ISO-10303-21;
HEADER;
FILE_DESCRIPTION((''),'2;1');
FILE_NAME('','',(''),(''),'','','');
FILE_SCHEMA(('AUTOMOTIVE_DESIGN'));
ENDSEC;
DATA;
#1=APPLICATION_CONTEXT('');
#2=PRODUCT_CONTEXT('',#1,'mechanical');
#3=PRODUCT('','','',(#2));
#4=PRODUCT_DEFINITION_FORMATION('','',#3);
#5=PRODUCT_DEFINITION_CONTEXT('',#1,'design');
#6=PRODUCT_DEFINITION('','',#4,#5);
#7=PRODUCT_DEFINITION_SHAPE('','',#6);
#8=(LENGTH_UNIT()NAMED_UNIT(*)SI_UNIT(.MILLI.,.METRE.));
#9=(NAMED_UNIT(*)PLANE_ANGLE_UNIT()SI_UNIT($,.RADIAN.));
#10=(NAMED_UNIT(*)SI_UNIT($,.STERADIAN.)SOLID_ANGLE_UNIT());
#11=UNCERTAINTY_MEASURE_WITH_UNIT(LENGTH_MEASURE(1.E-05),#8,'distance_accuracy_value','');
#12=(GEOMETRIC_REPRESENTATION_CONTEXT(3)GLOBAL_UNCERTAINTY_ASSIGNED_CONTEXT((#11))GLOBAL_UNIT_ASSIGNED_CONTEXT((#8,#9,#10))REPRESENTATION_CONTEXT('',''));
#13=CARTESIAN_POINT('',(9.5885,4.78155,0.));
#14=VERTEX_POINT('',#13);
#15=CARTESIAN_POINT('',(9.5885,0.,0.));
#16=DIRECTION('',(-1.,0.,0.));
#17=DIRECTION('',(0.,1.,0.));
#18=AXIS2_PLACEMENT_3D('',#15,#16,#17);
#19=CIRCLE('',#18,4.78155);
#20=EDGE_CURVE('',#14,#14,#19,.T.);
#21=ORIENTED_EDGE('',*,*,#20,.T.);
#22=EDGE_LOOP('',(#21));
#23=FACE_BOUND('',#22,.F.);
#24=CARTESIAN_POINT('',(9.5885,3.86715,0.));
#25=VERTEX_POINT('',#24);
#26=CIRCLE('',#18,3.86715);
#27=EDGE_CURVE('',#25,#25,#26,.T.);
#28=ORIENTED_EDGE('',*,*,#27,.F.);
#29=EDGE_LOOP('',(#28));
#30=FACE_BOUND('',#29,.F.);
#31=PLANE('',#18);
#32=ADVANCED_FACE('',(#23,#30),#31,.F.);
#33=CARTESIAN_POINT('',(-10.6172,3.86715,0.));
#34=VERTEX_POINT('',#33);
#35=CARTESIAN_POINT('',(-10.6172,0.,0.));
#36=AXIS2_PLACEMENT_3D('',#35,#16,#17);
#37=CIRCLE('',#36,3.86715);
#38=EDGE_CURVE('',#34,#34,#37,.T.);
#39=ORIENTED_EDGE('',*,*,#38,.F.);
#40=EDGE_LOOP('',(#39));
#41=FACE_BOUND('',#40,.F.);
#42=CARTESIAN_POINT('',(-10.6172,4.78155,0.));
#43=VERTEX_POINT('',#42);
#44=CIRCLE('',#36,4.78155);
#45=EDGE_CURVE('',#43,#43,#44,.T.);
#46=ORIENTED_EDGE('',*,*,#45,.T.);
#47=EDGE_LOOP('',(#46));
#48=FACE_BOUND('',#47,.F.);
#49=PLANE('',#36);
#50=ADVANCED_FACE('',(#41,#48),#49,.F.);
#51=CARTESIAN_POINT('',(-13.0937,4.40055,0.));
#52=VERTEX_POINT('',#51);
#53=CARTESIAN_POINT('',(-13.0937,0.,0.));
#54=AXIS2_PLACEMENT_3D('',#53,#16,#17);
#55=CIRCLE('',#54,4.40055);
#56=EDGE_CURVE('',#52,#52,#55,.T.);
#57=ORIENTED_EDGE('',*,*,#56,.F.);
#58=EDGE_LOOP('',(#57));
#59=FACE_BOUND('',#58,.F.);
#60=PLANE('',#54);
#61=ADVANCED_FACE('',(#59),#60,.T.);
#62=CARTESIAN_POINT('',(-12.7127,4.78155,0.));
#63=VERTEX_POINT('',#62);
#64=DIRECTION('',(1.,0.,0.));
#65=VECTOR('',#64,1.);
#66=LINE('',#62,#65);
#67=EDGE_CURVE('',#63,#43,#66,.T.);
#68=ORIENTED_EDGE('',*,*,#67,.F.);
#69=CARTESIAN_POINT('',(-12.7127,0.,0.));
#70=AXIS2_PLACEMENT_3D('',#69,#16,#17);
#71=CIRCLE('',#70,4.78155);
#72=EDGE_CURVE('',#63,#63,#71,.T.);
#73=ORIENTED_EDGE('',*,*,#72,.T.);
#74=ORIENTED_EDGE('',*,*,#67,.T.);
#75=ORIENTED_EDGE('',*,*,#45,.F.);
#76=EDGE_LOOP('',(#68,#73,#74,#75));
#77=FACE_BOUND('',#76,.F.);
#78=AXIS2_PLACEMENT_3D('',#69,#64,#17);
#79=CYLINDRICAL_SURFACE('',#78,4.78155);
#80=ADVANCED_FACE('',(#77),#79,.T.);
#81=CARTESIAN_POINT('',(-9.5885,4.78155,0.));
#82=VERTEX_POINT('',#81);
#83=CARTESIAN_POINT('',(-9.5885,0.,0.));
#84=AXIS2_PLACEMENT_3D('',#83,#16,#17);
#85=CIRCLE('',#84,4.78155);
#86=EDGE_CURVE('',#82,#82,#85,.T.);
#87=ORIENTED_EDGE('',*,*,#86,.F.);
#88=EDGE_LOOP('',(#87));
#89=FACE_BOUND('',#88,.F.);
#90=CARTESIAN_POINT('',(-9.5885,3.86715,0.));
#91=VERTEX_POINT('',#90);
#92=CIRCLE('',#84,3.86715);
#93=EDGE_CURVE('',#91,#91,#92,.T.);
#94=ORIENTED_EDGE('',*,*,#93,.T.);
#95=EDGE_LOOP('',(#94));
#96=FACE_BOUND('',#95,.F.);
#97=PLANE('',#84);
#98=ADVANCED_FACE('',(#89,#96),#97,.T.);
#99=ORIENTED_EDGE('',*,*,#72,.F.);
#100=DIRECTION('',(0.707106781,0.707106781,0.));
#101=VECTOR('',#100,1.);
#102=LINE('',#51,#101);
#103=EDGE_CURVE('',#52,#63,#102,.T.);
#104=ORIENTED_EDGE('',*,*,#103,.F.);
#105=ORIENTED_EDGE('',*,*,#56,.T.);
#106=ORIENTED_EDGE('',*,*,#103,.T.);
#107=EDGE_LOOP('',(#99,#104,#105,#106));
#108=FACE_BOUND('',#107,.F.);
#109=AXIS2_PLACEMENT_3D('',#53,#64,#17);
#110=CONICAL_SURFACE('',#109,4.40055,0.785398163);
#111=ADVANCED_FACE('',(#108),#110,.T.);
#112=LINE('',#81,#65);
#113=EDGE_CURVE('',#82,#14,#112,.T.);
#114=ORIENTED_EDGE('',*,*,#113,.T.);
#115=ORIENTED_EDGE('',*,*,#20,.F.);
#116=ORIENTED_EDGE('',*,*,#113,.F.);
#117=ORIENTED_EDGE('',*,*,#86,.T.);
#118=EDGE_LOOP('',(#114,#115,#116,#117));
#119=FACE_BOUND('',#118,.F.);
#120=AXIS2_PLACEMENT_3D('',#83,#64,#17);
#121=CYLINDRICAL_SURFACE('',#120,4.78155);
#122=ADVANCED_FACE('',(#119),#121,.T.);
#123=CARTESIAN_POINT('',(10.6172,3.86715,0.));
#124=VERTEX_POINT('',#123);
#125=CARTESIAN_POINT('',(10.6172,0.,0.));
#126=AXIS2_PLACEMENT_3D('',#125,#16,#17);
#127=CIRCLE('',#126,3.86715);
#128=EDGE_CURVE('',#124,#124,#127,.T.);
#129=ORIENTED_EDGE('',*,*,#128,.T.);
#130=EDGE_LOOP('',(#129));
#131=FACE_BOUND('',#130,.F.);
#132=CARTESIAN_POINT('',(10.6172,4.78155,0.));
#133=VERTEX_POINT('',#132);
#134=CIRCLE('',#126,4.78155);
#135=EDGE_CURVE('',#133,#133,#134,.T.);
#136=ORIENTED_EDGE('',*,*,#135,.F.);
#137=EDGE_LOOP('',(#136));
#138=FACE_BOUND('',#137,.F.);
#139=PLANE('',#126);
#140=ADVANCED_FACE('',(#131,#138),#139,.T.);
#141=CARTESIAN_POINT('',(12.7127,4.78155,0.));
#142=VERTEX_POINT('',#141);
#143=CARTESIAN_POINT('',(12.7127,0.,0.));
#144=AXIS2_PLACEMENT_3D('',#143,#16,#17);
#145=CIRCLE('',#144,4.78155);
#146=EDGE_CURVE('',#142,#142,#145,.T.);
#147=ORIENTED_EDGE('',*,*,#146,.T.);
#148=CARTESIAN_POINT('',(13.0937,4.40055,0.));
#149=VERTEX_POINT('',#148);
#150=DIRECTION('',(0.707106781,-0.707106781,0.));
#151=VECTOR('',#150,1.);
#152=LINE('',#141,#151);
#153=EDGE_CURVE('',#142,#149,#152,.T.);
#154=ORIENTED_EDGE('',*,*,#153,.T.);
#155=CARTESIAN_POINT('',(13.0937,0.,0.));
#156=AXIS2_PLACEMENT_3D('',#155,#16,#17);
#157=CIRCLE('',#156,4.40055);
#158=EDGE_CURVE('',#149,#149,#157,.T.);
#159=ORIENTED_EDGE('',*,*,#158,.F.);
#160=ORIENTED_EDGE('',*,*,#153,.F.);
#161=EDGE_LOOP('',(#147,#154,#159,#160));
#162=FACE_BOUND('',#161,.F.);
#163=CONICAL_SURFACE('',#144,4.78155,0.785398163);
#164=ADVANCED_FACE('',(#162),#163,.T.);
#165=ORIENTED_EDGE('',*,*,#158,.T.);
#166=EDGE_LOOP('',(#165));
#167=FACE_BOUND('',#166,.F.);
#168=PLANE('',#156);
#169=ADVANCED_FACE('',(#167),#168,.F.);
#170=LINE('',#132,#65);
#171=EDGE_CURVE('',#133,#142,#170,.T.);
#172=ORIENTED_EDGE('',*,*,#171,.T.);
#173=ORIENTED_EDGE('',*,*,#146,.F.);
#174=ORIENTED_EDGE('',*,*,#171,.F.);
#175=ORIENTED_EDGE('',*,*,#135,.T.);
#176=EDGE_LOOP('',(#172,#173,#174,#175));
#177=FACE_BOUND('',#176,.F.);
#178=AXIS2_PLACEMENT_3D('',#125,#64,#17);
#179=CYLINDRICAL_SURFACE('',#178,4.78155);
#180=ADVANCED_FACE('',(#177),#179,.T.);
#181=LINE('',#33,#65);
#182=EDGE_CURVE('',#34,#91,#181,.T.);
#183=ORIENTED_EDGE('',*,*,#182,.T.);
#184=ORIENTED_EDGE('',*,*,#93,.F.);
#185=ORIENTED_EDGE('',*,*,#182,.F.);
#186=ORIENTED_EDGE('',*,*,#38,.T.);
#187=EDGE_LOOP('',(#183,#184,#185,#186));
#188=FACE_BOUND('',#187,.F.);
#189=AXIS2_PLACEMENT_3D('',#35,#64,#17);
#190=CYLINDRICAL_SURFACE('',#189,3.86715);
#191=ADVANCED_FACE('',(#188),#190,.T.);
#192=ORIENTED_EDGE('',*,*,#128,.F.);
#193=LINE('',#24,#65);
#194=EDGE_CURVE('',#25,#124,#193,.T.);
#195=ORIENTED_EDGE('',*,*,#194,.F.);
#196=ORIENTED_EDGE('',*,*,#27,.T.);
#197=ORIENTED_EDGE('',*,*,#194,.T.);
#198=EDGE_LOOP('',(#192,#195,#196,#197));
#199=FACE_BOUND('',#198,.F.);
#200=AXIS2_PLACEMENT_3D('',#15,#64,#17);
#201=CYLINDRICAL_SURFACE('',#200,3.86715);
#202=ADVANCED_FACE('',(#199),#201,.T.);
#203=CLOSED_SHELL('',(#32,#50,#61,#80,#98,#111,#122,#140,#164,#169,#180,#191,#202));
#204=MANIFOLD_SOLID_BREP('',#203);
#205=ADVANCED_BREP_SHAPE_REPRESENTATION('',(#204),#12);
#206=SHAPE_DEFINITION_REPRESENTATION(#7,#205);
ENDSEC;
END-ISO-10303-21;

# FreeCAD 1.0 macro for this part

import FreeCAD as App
import Part
import Sketcher

V = App.Vector
Q = App.Units.Quantity


def add_polygon(sketch, points):
    """Adds a closed chain of lines whose ends are joined by coincident constraints."""
    first, n = sketch.GeometryCount, len(points)
    for a, b in zip(points, points[1:] + points[:1]):
        sketch.addGeometry(Part.LineSegment(App.Vector(*a, 0), App.Vector(*b, 0)), False)
    for i in range(n):
        sketch.addConstraint(Sketcher.Constraint("Coincident", first + i, 2, first + (i + 1) % n, 1))

doc = App.newDocument("Part")
body = doc.addObject("PartDesign::Body", "Body")

# Sketch on XY plane
sketch1 = doc.addObject("Sketcher::SketchObject", "Sketch")
body.addObject(sketch1)
sketch1.AttachmentSupport = (doc.XY_Plane, [""])
sketch1.MapMode = "FlatFace"
add_polygon(sketch1, [(-13.0937, 4.40055), (-13.0937, 0), (13.0937, 0), (13.0937, 4.40055), (12.7127, 4.78155), (10.6172, 4.78155), (10.6172, 3.86715), (9.5885, 3.86715), (9.5885, 4.78155), (-9.5885, 4.78155), (-9.5885, 3.86715), (-10.6172, 3.86715), (-10.6172, 4.78155), (-12.7127, 4.78155)])  # lines 0-13
sketch1.addConstraint([
    Sketcher.Constraint("Vertical", 0),
    Sketcher.Constraint("Horizontal", 1),
    Sketcher.Constraint("Vertical", 2),
    Sketcher.Constraint("Horizontal", 4),
    Sketcher.Constraint("Vertical", 5),
    Sketcher.Constraint("Horizontal", 6),
    Sketcher.Constraint("Vertical", 7),
    Sketcher.Constraint("Horizontal", 8),
    Sketcher.Constraint("Vertical", 9),
    Sketcher.Constraint("Horizontal", 10),
    Sketcher.Constraint("Vertical", 11),
    Sketcher.Constraint("Horizontal", 12),
    Sketcher.Constraint("Symmetric", 0, 2, 1, 2, -1, 1),
    Sketcher.Constraint("Symmetric", 6, 2, 9, 2, -2),
    Sketcher.Constraint("Symmetric", 4, 2, 11, 2, -2),
    Sketcher.Constraint("Perpendicular", 3, 13),
    Sketcher.Constraint("Horizontal", 4, 2, 7, 2),
    Sketcher.Constraint("Horizontal", 2, 2, 13, 2),
    Sketcher.Constraint("Equal", 4, 12),
    Sketcher.Constraint("DistanceX", 1, 1, 1, 2, Q("1.031 in")),
    Sketcher.Constraint("DistanceX", 8, 2, 8, 1, Q("0.755 in")),
    Sketcher.Constraint("DistanceY", 5, 2, 5, 1, Q("0.036 in")),
    Sketcher.Constraint("DistanceX", 4, 2, 4, 1, Q("0.0825 in")),
    Sketcher.Constraint("DistanceX", 6, 2, 6, 1, Q("0.0405 in")),
    Sketcher.Constraint("DistanceY", 0, 2, 0, 1, 4.40055),
])
revolution = doc.addObject("PartDesign::Revolution", "Revolution")
body.addObject(revolution)
revolution.Profile = sketch1
revolution.ReferenceAxis = (sketch1, ["H_Axis"])
revolution.Angle = 360

doc.recompute()
